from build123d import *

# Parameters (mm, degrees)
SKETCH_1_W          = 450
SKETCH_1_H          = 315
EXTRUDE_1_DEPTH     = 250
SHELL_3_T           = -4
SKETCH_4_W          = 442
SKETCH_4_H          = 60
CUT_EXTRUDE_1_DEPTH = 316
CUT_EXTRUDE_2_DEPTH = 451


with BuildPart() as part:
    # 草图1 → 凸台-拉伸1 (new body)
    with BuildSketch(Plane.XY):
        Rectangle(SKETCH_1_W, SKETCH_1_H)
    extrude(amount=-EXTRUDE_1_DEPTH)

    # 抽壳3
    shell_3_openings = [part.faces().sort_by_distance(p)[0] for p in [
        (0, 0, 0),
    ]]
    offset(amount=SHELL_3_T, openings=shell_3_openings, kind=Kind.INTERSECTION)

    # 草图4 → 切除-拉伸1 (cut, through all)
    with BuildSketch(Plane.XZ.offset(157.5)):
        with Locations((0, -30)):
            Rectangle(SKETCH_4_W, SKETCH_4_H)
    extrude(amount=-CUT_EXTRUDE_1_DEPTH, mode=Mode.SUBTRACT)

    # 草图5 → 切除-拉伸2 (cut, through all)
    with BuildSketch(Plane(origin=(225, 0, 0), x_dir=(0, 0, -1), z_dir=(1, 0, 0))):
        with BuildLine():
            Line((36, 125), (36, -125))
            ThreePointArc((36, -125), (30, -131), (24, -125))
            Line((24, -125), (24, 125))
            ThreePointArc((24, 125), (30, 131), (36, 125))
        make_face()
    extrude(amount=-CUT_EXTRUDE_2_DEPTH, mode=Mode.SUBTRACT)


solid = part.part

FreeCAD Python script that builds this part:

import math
import FreeCAD as App
import Part
import Sketcher
from FreeCAD import Vector


def faces_at(feature, points):
    """Names of the faces that lie closest to the given points."""
    faces = feature.Shape.Faces
    near = lambda p: min(range(len(faces)), key=lambda i: faces[i].distToShape(Part.Vertex(*p))[0])
    return sorted({f"Face{near(p) + 1}" for p in points})


def add_polygon(sketch, points):
    """Adds a closed chain of lines whose ends are joined by coincident constraints."""
    first, n = sketch.GeometryCount, len(points)
    for a, b in zip(points, points[1:] + points[:1]):
        sketch.addGeometry(Part.LineSegment(App.Vector(*a, 0), App.Vector(*b, 0)), False)
    for i in range(n):
        sketch.addConstraint(Sketcher.Constraint("Coincident", first + i, 2, first + (i + 1) % n, 1))

doc = App.newDocument("Part")
params = doc.addObject("Spreadsheet::Sheet", "Params")
for row, (alias, value) in enumerate([
    ("sketch1_width", "450 mm"),
    ("sketch1_height", "315 mm"),
    ("pad1_length", "250 mm"),
    ("thickness_wall", "4 mm"),
    ("sketch2_width", "442 mm"),
    ("sketch2_height", "60 mm"),
    ("sketch3_radius", "6 mm"),
    ("sketch3_width", "250 mm"),
], start=1):
    params.set(f"A{row}", alias)
    params.set(f"B{row}", "=" + value)
    params.setAlias(f"B{row}", alias)

body = doc.addObject("PartDesign::Body", "Body")

sketch1 = body.newObject("Sketcher::SketchObject", "Sketch")
sketch1.AttachmentSupport = (doc.getObject("XY_Plane"), [""])
sketch1.MapMode = "FlatFace"
add_polygon(sketch1, [(-225, 158), (-225, -158), (225, -158), (225, 158)])
sketch1.addConstraint([
    Sketcher.Constraint("Vertical", 0),
    Sketcher.Constraint("Horizontal", 1),
    Sketcher.Constraint("Vertical", 2),
    Sketcher.Constraint("Horizontal", 3),
    Sketcher.Constraint("Symmetric", 0, 2, 2, 2, -1, 1),
    Sketcher.Constraint("DistanceX", 1, 1, 1, 2, 450.0),
    Sketcher.Constraint("DistanceY", 0, 2, 0, 1, 315.0),
])
sketch1.setExpression("Constraints[9]", "Params.sketch1_width")
sketch1.setExpression("Constraints[10]", "Params.sketch1_height")
pad1 = body.newObject("PartDesign::Pad", "Pad")
pad1.Profile = sketch1
pad1.setExpression("Length", "Params.pad1_length")
pad1.Reversed = True
doc.recompute()

thickness = body.newObject("PartDesign::Thickness", "Thickness")
thickness.Base = (pad1, faces_at(pad1, [(0, 0, 0)]))
thickness.setExpression("Value", "Params.thickness_wall")
thickness.Reversed = True
thickness.Join = "Intersection"

sketch2 = body.newObject("Sketcher::SketchObject", "Sketch001")
sketch2.AttachmentSupport = (doc.getObject("XZ_Plane"), [""])
sketch2.MapMode = "FlatFace"
sketch2.AttachmentOffset = App.Placement(Vector(0, 0, 157.5), App.Rotation())
add_polygon(sketch2, [(-221, 0), (-221, -60), (221, -60), (221, 0)])
sketch2.addConstraint([
    Sketcher.Constraint("Vertical", 0),
    Sketcher.Constraint("Horizontal", 1),
    Sketcher.Constraint("Vertical", 2),
    Sketcher.Constraint("Horizontal", 3),
    Sketcher.Constraint("Symmetric", 2, 2, 3, 2, -1, 1),
    Sketcher.Constraint("DistanceX", 1, 1, 1, 2, 442.0),
    Sketcher.Constraint("DistanceY", 0, 2, 0, 1, 60.0),
])
sketch2.setExpression("Constraints[9]", "Params.sketch2_width")
sketch2.setExpression("Constraints[10]", "Params.sketch2_height")
pocket1 = body.newObject("PartDesign::Pocket", "Pocket")
pocket1.Profile = sketch2
pocket1.Type = "ThroughAll"

sketch3 = body.newObject("Sketcher::SketchObject", "Sketch002")
sketch3.AttachmentSupport = (doc.getObject("YZ_Plane"), [""])
sketch3.MapMode = "FlatFace"
sketch3.AttachmentOffset = App.Placement(Vector(0, 0, 225), App.Rotation())
sketch3.addGeometry([
    Part.LineSegment(Vector(-125, -36, 0), Vector(125, -36, 0)),
    Part.ArcOfCircle(Part.Circle(Vector(125, -30, 0), Vector(0, 0, 1), 6), math.radians(-90), math.radians(90)),
    Part.LineSegment(Vector(125, -24, 0), Vector(-125, -24, 0)),
    Part.ArcOfCircle(Part.Circle(Vector(-125, -30, 0), Vector(0, 0, 1), 6), math.radians(90), math.radians(270)),
], False)
sketch3.addConstraint([
    Sketcher.Constraint("Tangent", 0, 2, 1, 1),
    Sketcher.Constraint("Tangent", 1, 2, 2, 1),
    Sketcher.Constraint("Tangent", 2, 2, 3, 1),
    Sketcher.Constraint("Tangent", 3, 2, 0, 1),
    Sketcher.Constraint("Horizontal", 0),
    Sketcher.Constraint("Horizontal", 2),
    Sketcher.Constraint("Radius", 1, 6.0),
    Sketcher.Constraint("DistanceX", 0, 1, 0, 2, 250.0),
    Sketcher.Constraint("DistanceX", -1, 1, 1, 3, 125.0),
    Sketcher.Constraint("DistanceY", 1, 3, -1, 1, 30.0),
])
sketch3.setExpression("Constraints[6]", "Params.sketch3_radius")
sketch3.setExpression("Constraints[7]", "Params.sketch3_width")
pocket2 = body.newObject("PartDesign::Pocket", "Pocket001")
pocket2.Profile = sketch3
pocket2.Type = "ThroughAll"

doc.recompute()
